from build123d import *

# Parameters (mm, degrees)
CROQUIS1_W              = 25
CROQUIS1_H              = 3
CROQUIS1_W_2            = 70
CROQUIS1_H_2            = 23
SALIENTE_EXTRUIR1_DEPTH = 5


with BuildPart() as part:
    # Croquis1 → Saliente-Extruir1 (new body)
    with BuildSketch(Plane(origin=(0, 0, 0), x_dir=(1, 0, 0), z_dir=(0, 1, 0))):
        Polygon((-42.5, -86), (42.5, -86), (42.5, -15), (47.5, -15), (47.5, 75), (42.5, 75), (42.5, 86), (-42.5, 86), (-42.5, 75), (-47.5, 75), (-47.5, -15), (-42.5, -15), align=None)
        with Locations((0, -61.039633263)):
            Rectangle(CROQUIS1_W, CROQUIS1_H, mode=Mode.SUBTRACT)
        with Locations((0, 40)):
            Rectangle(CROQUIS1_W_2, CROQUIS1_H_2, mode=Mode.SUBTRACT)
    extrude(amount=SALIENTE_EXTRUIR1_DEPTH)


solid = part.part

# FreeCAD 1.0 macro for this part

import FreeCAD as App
import Part
import Sketcher
Q = App.Units.Quantity


def add_polygon(sketch, points):
    """Adds a closed chain of lines whose ends are joined by coincident constraints."""
    first, n = sketch.GeometryCount, len(points)
    for a, b in zip(points, points[1:] + points[:1]):
        sketch.addGeometry(Part.LineSegment(App.Vector(*a, 0), App.Vector(*b, 0)), False)
    for i in range(n):
        sketch.addConstraint(Sketcher.Constraint("Coincident", first + i, 2, first + (i + 1) % n, 1))

doc = App.newDocument("Part")
body = doc.addObject("PartDesign::Body", "Body")

sketch1 = body.newObject("Sketcher::SketchObject", "Sketch")
sketch1.AttachmentSupport = (doc.getObject("XZ_Plane"), [""])
sketch1.MapMode = "FlatFace"
add_polygon(sketch1, [(-42.5, 86), (42.5, 86), (42.5, 15), (47.5, 15), (47.5, -75), (42.5, -75), (42.5, -86), (-42.5, -86), (-42.5, -75), (-47.5, -75), (-47.5, 15), (-42.5, 15)])
add_polygon(sketch1, [(12.5, 62.5), (-12.5, 62.5), (-12.5, 59.5), (12.5, 59.5)])
add_polygon(sketch1, [(35, -28.5), (-35, -28.5), (-35, -51.5), (35, -51.5)])
sketch1.addConstraint(Sketcher.Constraint("Horizontal", 0))
sketch1.addConstraint(Sketcher.Constraint("Vertical", 1))
sketch1.addConstraint(Sketcher.Constraint("Horizontal", 2))
sketch1.addConstraint(Sketcher.Constraint("Vertical", 3))
sketch1.addConstraint(Sketcher.Constraint("Horizontal", 4))
sketch1.addConstraint(Sketcher.Constraint("Vertical", 5))
sketch1.addConstraint(Sketcher.Constraint("Horizontal", 6))
sketch1.addConstraint(Sketcher.Constraint("Vertical", 7))
sketch1.addConstraint(Sketcher.Constraint("Horizontal", 8))
sketch1.addConstraint(Sketcher.Constraint("Vertical", 9))
sketch1.addConstraint(Sketcher.Constraint("Horizontal", 10))
sketch1.addConstraint(Sketcher.Constraint("Vertical", 11))
sketch1.addConstraint(Sketcher.Constraint("Horizontal", 12))
sketch1.addConstraint(Sketcher.Constraint("Vertical", 13))
sketch1.addConstraint(Sketcher.Constraint("Horizontal", 14))
sketch1.addConstraint(Sketcher.Constraint("Vertical", 15))
sketch1.addConstraint(Sketcher.Constraint("Horizontal", 16))
sketch1.addConstraint(Sketcher.Constraint("Vertical", 17))
sketch1.addConstraint(Sketcher.Constraint("Horizontal", 18))
sketch1.addConstraint(Sketcher.Constraint("Vertical", 19))
sketch1.addConstraint(Sketcher.Constraint("Symmetric", 0, 2, 6, 2, -1, 1))
sketch1.addConstraint(Sketcher.Constraint("Symmetric", 4, 2, 7, 2, -2))
sketch1.addConstraint(Sketcher.Constraint("Symmetric", 2, 2, 9, 2, -2))
sketch1.addConstraint(Sketcher.Constraint("Vertical", 7, 2, 10, 2))
sketch1.addConstraint(Sketcher.Constraint("DistanceX", 0, 1, 0, 2, Q("85 mm")))
sketch1.addConstraint(Sketcher.Constraint("DistanceX", 2, 1, 2, 2, Q("5 mm")))
sketch1.addConstraint(Sketcher.Constraint("DistanceX", 12, 2, 12, 1, Q("25 mm")))
sketch1.addConstraint(Sketcher.Constraint("DistanceX", 16, 2, 16, 1, Q("70 mm")))
sketch1.addConstraint(Sketcher.Constraint("DistanceY", 1, 2, 1, 1, Q("71 mm")))
sketch1.addConstraint(Sketcher.Constraint("DistanceY", 3, 2, 3, 1, Q("90 mm")))
sketch1.addConstraint(Sketcher.Constraint("DistanceY", 5, 2, 5, 1, Q("11 mm")))
sketch1.addConstraint(Sketcher.Constraint("DistanceY", 13, 2, 13, 1, Q("3 mm")))
sketch1.addConstraint(Sketcher.Constraint("DistanceY", 17, 2, 17, 1, Q("23 mm")))
sketch1.addConstraint(Sketcher.Constraint("DistanceX", 16, 2, -1, 1, Q("35 mm")))
sketch1.addConstraint(Sketcher.Constraint("DistanceX", 11, 2, 12, 2, Q("30 mm")))
sketch1.addConstraint(Sketcher.Constraint("DistanceY", 16, 2, -1, 1, Q("28.5 mm")))
sketch1.addConstraint(Sketcher.Constraint("DistanceY", -1, 1, 12, 2, Q("62.539633 mm")))
pad1 = body.newObject("PartDesign::Pad", "Pad")
pad1.Profile = sketch1
pad1.Length = 5
pad1.Reversed = True

doc.recompute()
